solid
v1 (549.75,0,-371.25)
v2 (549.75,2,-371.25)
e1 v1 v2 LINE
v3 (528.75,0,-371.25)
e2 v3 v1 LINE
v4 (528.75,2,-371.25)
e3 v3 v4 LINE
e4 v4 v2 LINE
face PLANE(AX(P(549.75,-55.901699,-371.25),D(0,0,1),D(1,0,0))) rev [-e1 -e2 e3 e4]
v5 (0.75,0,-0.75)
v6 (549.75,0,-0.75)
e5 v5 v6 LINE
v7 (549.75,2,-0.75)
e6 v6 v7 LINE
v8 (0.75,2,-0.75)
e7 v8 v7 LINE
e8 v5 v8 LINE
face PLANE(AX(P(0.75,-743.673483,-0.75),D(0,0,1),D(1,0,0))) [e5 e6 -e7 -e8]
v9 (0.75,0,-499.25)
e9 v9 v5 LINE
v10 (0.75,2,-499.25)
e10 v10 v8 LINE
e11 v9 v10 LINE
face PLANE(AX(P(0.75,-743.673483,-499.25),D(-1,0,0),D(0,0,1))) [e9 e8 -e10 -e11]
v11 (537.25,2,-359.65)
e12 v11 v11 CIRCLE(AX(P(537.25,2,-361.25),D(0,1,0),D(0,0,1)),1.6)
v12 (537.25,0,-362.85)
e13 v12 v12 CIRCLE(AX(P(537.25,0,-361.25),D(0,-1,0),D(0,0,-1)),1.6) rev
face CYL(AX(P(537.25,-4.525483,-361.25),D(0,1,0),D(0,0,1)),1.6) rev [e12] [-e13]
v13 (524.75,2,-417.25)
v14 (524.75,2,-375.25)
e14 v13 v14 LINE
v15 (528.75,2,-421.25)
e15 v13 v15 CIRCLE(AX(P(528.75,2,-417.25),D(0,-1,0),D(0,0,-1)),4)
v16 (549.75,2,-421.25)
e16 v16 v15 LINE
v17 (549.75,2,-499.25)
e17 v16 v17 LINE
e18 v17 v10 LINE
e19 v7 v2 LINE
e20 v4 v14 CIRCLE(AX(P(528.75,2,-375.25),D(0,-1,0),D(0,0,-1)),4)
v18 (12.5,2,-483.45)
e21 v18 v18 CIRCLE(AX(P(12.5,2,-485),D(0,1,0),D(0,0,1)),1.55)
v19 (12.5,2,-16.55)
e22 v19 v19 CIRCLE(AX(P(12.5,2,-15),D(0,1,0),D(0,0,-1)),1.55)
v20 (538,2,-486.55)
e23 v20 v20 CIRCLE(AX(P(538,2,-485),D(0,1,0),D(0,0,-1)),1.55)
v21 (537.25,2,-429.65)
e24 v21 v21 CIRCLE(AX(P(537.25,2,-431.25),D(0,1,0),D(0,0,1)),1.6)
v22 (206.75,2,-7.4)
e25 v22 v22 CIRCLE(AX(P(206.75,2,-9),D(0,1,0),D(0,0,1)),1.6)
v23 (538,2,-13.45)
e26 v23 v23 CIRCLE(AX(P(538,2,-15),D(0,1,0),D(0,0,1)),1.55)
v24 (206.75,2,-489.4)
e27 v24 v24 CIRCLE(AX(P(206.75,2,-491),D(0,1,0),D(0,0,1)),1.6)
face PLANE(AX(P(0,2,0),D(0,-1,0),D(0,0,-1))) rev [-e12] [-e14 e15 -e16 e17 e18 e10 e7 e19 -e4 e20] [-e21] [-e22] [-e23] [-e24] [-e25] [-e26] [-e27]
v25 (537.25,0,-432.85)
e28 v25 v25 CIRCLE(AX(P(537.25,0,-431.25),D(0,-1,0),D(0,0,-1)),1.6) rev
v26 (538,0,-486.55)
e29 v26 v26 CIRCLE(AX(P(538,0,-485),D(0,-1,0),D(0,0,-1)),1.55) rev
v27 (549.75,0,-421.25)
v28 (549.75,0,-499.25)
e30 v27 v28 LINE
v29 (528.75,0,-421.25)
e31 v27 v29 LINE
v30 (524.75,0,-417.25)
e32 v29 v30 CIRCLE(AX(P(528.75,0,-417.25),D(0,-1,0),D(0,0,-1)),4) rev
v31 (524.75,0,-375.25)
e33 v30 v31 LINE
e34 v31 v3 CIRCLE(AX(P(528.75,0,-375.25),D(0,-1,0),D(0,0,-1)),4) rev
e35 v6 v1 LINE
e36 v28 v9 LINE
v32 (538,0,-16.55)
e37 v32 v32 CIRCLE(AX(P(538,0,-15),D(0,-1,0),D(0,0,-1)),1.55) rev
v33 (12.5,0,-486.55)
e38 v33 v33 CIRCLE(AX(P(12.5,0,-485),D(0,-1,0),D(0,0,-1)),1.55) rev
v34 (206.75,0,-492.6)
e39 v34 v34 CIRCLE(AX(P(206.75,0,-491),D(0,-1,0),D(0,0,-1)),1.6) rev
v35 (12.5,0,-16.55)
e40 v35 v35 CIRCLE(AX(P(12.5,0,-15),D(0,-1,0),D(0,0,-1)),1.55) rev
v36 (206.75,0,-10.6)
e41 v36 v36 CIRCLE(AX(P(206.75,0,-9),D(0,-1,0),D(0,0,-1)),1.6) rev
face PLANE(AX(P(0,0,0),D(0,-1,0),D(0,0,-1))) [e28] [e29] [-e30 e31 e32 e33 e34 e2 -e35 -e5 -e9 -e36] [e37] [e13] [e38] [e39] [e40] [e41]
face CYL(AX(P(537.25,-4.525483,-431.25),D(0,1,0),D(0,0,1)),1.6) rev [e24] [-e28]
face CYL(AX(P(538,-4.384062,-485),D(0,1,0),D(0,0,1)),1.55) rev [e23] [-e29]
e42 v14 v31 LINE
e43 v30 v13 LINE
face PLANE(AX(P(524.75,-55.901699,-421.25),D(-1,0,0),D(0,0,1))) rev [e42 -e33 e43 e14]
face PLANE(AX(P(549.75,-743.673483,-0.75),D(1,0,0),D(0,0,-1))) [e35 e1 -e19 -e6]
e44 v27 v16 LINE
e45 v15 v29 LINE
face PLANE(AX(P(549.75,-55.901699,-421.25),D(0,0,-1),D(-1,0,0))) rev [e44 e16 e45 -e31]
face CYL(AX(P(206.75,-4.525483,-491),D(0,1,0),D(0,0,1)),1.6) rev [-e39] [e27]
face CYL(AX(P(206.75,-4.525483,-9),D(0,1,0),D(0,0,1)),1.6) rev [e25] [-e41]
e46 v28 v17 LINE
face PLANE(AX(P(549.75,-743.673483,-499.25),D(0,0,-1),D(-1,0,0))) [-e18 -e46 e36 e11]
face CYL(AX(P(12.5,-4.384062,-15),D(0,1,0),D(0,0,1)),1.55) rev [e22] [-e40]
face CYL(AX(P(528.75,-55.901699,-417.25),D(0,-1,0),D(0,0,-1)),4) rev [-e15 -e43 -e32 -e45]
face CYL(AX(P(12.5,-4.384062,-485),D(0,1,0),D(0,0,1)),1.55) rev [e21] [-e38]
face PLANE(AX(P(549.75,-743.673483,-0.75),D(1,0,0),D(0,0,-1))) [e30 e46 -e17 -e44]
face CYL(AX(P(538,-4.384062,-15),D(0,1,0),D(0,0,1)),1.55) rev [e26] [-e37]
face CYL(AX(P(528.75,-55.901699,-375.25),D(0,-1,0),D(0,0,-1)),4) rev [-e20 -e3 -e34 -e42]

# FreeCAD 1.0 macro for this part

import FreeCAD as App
import Part
import Sketcher
Q = App.Units.Quantity


def edges_at(feature, points):
    """Names of the edges that pass closest to the given points."""
    edges = feature.Shape.Edges
    near = lambda p: min(range(len(edges)), key=lambda i: edges[i].distToShape(Part.Vertex(*p))[0])
    return sorted({f"Edge{near(p) + 1}" for p in points})

doc = App.newDocument("Part")
body = doc.addObject("PartDesign::Body", "Body")

sketch1 = body.newObject("Sketcher::SketchObject", "Sketch")
sketch1.AttachmentSupport = (doc.getObject("XZ_Plane"), [""])
sketch1.MapMode = "FlatFace"
sketch1.addGeometry([
    Part.LineSegment(App.Vector(0, -500, 0), App.Vector(0, 0, 0)),
    Part.LineSegment(App.Vector(0, 0, 0), App.Vector(550, 0, 0)),
    Part.LineSegment(App.Vector(550, 0, 0), App.Vector(550, -500, 0)),
    Part.LineSegment(App.Vector(550, -500, 0), App.Vector(0, -500, 0)),
], False)
sketch1.addConstraint([
    Sketcher.Constraint("Coincident", 0, 2, 1, 1),
    Sketcher.Constraint("Coincident", 1, 2, 2, 1),
    Sketcher.Constraint("Coincident", 2, 2, 3, 1),
    Sketcher.Constraint("Coincident", 3, 2, 0, 1),
    Sketcher.Constraint("Vertical", 0),
    Sketcher.Constraint("Horizontal", 1),
    Sketcher.Constraint("Vertical", 2),
    Sketcher.Constraint("Horizontal", 3),
    Sketcher.Constraint("Coincident", 0, 2, -1, 1),
    Sketcher.Constraint("DistanceY", 0, 1, 0, 2, Q("500 mm")),
    Sketcher.Constraint("DistanceX", 1, 1, 1, 2, Q("550.5 mm")),
])
pad1 = body.newObject("PartDesign::Pad", "Pad")
pad1.Profile = sketch1
pad1.Length = 2
pad1.Reversed = True

sketch2 = body.newObject("Sketcher::SketchObject", "Sketch001")
sketch2.AttachmentSupport = (doc.getObject("XZ_Plane"), [""])
sketch2.MapMode = "FlatFace"
sketch2.AttachmentOffset = App.Placement(App.Vector(0, 0, -2), App.Rotation())
sketch2.addGeometry([
    Part.Circle(App.Vector(12.5, -485, 0), App.Vector(0, 0, 1), 1.6),
    Part.Circle(App.Vector(538, -485, 0), App.Vector(0, 0, 1), 1.6),
    Part.Circle(App.Vector(538, -15, 0), App.Vector(0, 0, 1), 1.6),
    Part.Circle(App.Vector(12.5, -15, 0), App.Vector(0, 0, 1), 1.6),
], False)
sketch2.addConstraint([
    Sketcher.Constraint("Equal", 0, 1),
    Sketcher.Constraint("Equal", 1, 2),
    Sketcher.Constraint("Equal", 2, 3),
    Sketcher.Constraint("Horizontal", 0, 3, 1, 3),
    Sketcher.Constraint("Horizontal", 2, 3, 3, 3),
    Sketcher.Constraint("Vertical", 1, 3, 2, 3),
    Sketcher.Constraint("Vertical", 0, 3, 3, 3),
    Sketcher.Constraint("Diameter", 0, Q("3.1 mm")),
    Sketcher.Constraint("DistanceY", 0, 3, -1, 1, Q("485 mm")),
    Sketcher.Constraint("DistanceX", -1, 1, 1, 3, Q("538 mm")),
    Sketcher.Constraint("DistanceY", 2, 3, -1, 1, Q("15 mm")),
    Sketcher.Constraint("DistanceX", -1, 1, 0, 3, Q("12.5 mm")),
])
pocket1 = body.newObject("PartDesign::Pocket", "Pocket")
pocket1.Profile = sketch2
pocket1.Length = 2
pocket1.Reversed = True

sketch3 = body.newObject("Sketcher::SketchObject", "Sketch002")
sketch3.AttachmentSupport = (doc.getObject("XZ_Plane"), [""])
sketch3.MapMode = "FlatFace"
sketch3.AttachmentOffset = App.Placement(App.Vector(0, 0, -2), App.Rotation())
sketch3.addGeometry([
    Part.LineSegment(App.Vector(0, -500, 0), App.Vector(0, 0, 0)),
    Part.LineSegment(App.Vector(0, 0, 0), App.Vector(550, 0, 0)),
    Part.LineSegment(App.Vector(550, 0, 0), App.Vector(550, -500, 0)),
    Part.LineSegment(App.Vector(550, -500, 0), App.Vector(0, -500, 0)),
    Part.LineSegment(App.Vector(550, -1, 0), App.Vector(1, -1, 0)),
    Part.LineSegment(App.Vector(1, -1, 0), App.Vector(1, -499, 0)),
    Part.LineSegment(App.Vector(1, -499, 0), App.Vector(550, -499, 0)),
    Part.LineSegment(App.Vector(550, -499, 0), App.Vector(550, -1, 0)),
], False)
sketch3.addConstraint([
    Sketcher.Constraint("Coincident", 0, 2, 1, 1),
    Sketcher.Constraint("Coincident", 1, 2, 2, 1),
    Sketcher.Constraint("Coincident", 2, 2, 3, 1),
    Sketcher.Constraint("Coincident", 3, 2, 0, 1),
    Sketcher.Constraint("Coincident", 4, 2, 5, 1),
    Sketcher.Constraint("Coincident", 5, 2, 6, 1),
    Sketcher.Constraint("Coincident", 6, 2, 7, 1),
    Sketcher.Constraint("Coincident", 7, 2, 4, 1),
    Sketcher.Constraint("Vertical", 0),
    Sketcher.Constraint("Horizontal", 1),
    Sketcher.Constraint("Vertical", 2),
    Sketcher.Constraint("Horizontal", 3),
    Sketcher.Constraint("Horizontal", 4),
    Sketcher.Constraint("Vertical", 5),
    Sketcher.Constraint("Horizontal", 6),
    Sketcher.Constraint("Vertical", 7),
    Sketcher.Constraint("Coincident", 0, 2, -1, 1),
    Sketcher.Constraint("DistanceX", 4, 2, 4, 1, Q("549 mm")),
    Sketcher.Constraint("DistanceY", 0, 1, 0, 2, Q("500 mm")),
    Sketcher.Constraint("DistanceX", 1, 1, 1, 2, Q("550.5 mm")),
    Sketcher.Constraint("DistanceY", 5, 2, 5, 1, Q("498.5 mm")),
    Sketcher.Constraint("DistanceX", -1, 1, 4, 2, Q("0.75 mm")),
    Sketcher.Constraint("DistanceY", 4, 2, -1, 1, Q("0.75 mm")),
])
pocket2 = body.newObject("PartDesign::Pocket", "Pocket001")
pocket2.Profile = sketch3
pocket2.Length = 2
pocket2.Reversed = True

sketch4 = body.newObject("Sketcher::SketchObject", "Sketch003")
sketch4.AttachmentSupport = (doc.getObject("XZ_Plane"), [""])
sketch4.MapMode = "FlatFace"
sketch4.AttachmentOffset = App.Placement(App.Vector(0, 0, -2), App.Rotation())
sketch4.addGeometry([
    Part.LineSegment(App.Vector(525, -421, 0), App.Vector(525, -371, 0)),
    Part.LineSegment(App.Vector(525, -371, 0), App.Vector(550, -371, 0)),
    Part.LineSegment(App.Vector(550, -371, 0), App.Vector(550, -421, 0)),
    Part.LineSegment(App.Vector(550, -421, 0), App.Vector(525, -421, 0)),
], False)
sketch4.addConstraint([
    Sketcher.Constraint("Coincident", 0, 2, 1, 1),
    Sketcher.Constraint("Coincident", 1, 2, 2, 1),
    Sketcher.Constraint("Coincident", 2, 2, 3, 1),
    Sketcher.Constraint("Coincident", 3, 2, 0, 1),
    Sketcher.Constraint("Vertical", 0),
    Sketcher.Constraint("Horizontal", 1),
    Sketcher.Constraint("Vertical", 2),
    Sketcher.Constraint("Horizontal", 3),
    Sketcher.Constraint("DistanceX", 1, 1, 1, 2, Q("25 mm")),
    Sketcher.Constraint("DistanceY", 0, 1, 0, 2, Q("50 mm")),
    Sketcher.Constraint("DistanceX", -1, 1, 0, 2, Q("524.75 mm")),
    Sketcher.Constraint("DistanceY", 0, 2, -1, 1, Q("371.25 mm")),
])
pocket3 = body.newObject("PartDesign::Pocket", "Pocket002")
pocket3.Profile = sketch4
pocket3.Length = 2
pocket3.Reversed = True
doc.recompute()

fillet = body.newObject("PartDesign::Fillet", "Fillet")
fillet.Base = (pocket3, edges_at(pocket3, [(524.75, 1, -421.25), (524.75, 1, -371.25)]))
fillet.Radius = 4

sketch5 = body.newObject("Sketcher::SketchObject", "Sketch004")
sketch5.AttachmentSupport = (doc.getObject("XZ_Plane"), [""])
sketch5.MapMode = "FlatFace"
sketch5.AttachmentOffset = App.Placement(App.Vector(0, 0, -2), App.Rotation())
sketch5.addGeometry([
    Part.Circle(App.Vector(537.2, -431.2, 0), App.Vector(0, 0, 1), 1.6),
    Part.Circle(App.Vector(537.2, -361.2, 0), App.Vector(0, 0, 1), 1.6),
], False)
sketch5.addConstraint([
    Sketcher.Constraint("Equal", 0, 1),
    Sketcher.Constraint("Vertical", 0, 3, 1, 3),
    Sketcher.Constraint("Diameter", 0, Q("3.2 mm")),
    Sketcher.Constraint("DistanceY", 0, 3, 1, 3, Q("70 mm")),
    Sketcher.Constraint("DistanceX", -1, 1, 0, 3, Q("537.25 mm")),
    Sketcher.Constraint("DistanceY", 0, 3, -1, 1, Q("431.25 mm")),
])
pocket4 = body.newObject("PartDesign::Pocket", "Pocket003")
pocket4.Profile = sketch5
pocket4.Length = 2
pocket4.Reversed = True

sketch6 = body.newObject("Sketcher::SketchObject", "Sketch005")
sketch6.AttachmentSupport = (doc.getObject("XZ_Plane"), [""])
sketch6.MapMode = "FlatFace"
sketch6.AttachmentOffset = App.Placement(App.Vector(0, 0, -2), App.Rotation())
sketch6.addGeometry([
    Part.Circle(App.Vector(206.8, -491, 0), App.Vector(0, 0, 1), 1.6),
    Part.Circle(App.Vector(206.8, -9, 0), App.Vector(0, 0, 1), 1.6),
], False)
sketch6.addConstraint([
    Sketcher.Constraint("Equal", 0, 1),
    Sketcher.Constraint("Vertical", 0, 3, 1, 3),
    Sketcher.Constraint("Diameter", 0, Q("3.2 mm")),
    Sketcher.Constraint("DistanceY", 0, 3, -1, 1, Q("491 mm")),
    Sketcher.Constraint("DistanceY", 1, 3, -1, 1, Q("9 mm")),
    Sketcher.Constraint("DistanceX", -1, 1, 0, 3, Q("206.75 mm")),
])
pocket5 = body.newObject("PartDesign::Pocket", "Pocket004")
pocket5.Profile = sketch6
pocket5.Length = 2
pocket5.Reversed = True

doc.recompute()
